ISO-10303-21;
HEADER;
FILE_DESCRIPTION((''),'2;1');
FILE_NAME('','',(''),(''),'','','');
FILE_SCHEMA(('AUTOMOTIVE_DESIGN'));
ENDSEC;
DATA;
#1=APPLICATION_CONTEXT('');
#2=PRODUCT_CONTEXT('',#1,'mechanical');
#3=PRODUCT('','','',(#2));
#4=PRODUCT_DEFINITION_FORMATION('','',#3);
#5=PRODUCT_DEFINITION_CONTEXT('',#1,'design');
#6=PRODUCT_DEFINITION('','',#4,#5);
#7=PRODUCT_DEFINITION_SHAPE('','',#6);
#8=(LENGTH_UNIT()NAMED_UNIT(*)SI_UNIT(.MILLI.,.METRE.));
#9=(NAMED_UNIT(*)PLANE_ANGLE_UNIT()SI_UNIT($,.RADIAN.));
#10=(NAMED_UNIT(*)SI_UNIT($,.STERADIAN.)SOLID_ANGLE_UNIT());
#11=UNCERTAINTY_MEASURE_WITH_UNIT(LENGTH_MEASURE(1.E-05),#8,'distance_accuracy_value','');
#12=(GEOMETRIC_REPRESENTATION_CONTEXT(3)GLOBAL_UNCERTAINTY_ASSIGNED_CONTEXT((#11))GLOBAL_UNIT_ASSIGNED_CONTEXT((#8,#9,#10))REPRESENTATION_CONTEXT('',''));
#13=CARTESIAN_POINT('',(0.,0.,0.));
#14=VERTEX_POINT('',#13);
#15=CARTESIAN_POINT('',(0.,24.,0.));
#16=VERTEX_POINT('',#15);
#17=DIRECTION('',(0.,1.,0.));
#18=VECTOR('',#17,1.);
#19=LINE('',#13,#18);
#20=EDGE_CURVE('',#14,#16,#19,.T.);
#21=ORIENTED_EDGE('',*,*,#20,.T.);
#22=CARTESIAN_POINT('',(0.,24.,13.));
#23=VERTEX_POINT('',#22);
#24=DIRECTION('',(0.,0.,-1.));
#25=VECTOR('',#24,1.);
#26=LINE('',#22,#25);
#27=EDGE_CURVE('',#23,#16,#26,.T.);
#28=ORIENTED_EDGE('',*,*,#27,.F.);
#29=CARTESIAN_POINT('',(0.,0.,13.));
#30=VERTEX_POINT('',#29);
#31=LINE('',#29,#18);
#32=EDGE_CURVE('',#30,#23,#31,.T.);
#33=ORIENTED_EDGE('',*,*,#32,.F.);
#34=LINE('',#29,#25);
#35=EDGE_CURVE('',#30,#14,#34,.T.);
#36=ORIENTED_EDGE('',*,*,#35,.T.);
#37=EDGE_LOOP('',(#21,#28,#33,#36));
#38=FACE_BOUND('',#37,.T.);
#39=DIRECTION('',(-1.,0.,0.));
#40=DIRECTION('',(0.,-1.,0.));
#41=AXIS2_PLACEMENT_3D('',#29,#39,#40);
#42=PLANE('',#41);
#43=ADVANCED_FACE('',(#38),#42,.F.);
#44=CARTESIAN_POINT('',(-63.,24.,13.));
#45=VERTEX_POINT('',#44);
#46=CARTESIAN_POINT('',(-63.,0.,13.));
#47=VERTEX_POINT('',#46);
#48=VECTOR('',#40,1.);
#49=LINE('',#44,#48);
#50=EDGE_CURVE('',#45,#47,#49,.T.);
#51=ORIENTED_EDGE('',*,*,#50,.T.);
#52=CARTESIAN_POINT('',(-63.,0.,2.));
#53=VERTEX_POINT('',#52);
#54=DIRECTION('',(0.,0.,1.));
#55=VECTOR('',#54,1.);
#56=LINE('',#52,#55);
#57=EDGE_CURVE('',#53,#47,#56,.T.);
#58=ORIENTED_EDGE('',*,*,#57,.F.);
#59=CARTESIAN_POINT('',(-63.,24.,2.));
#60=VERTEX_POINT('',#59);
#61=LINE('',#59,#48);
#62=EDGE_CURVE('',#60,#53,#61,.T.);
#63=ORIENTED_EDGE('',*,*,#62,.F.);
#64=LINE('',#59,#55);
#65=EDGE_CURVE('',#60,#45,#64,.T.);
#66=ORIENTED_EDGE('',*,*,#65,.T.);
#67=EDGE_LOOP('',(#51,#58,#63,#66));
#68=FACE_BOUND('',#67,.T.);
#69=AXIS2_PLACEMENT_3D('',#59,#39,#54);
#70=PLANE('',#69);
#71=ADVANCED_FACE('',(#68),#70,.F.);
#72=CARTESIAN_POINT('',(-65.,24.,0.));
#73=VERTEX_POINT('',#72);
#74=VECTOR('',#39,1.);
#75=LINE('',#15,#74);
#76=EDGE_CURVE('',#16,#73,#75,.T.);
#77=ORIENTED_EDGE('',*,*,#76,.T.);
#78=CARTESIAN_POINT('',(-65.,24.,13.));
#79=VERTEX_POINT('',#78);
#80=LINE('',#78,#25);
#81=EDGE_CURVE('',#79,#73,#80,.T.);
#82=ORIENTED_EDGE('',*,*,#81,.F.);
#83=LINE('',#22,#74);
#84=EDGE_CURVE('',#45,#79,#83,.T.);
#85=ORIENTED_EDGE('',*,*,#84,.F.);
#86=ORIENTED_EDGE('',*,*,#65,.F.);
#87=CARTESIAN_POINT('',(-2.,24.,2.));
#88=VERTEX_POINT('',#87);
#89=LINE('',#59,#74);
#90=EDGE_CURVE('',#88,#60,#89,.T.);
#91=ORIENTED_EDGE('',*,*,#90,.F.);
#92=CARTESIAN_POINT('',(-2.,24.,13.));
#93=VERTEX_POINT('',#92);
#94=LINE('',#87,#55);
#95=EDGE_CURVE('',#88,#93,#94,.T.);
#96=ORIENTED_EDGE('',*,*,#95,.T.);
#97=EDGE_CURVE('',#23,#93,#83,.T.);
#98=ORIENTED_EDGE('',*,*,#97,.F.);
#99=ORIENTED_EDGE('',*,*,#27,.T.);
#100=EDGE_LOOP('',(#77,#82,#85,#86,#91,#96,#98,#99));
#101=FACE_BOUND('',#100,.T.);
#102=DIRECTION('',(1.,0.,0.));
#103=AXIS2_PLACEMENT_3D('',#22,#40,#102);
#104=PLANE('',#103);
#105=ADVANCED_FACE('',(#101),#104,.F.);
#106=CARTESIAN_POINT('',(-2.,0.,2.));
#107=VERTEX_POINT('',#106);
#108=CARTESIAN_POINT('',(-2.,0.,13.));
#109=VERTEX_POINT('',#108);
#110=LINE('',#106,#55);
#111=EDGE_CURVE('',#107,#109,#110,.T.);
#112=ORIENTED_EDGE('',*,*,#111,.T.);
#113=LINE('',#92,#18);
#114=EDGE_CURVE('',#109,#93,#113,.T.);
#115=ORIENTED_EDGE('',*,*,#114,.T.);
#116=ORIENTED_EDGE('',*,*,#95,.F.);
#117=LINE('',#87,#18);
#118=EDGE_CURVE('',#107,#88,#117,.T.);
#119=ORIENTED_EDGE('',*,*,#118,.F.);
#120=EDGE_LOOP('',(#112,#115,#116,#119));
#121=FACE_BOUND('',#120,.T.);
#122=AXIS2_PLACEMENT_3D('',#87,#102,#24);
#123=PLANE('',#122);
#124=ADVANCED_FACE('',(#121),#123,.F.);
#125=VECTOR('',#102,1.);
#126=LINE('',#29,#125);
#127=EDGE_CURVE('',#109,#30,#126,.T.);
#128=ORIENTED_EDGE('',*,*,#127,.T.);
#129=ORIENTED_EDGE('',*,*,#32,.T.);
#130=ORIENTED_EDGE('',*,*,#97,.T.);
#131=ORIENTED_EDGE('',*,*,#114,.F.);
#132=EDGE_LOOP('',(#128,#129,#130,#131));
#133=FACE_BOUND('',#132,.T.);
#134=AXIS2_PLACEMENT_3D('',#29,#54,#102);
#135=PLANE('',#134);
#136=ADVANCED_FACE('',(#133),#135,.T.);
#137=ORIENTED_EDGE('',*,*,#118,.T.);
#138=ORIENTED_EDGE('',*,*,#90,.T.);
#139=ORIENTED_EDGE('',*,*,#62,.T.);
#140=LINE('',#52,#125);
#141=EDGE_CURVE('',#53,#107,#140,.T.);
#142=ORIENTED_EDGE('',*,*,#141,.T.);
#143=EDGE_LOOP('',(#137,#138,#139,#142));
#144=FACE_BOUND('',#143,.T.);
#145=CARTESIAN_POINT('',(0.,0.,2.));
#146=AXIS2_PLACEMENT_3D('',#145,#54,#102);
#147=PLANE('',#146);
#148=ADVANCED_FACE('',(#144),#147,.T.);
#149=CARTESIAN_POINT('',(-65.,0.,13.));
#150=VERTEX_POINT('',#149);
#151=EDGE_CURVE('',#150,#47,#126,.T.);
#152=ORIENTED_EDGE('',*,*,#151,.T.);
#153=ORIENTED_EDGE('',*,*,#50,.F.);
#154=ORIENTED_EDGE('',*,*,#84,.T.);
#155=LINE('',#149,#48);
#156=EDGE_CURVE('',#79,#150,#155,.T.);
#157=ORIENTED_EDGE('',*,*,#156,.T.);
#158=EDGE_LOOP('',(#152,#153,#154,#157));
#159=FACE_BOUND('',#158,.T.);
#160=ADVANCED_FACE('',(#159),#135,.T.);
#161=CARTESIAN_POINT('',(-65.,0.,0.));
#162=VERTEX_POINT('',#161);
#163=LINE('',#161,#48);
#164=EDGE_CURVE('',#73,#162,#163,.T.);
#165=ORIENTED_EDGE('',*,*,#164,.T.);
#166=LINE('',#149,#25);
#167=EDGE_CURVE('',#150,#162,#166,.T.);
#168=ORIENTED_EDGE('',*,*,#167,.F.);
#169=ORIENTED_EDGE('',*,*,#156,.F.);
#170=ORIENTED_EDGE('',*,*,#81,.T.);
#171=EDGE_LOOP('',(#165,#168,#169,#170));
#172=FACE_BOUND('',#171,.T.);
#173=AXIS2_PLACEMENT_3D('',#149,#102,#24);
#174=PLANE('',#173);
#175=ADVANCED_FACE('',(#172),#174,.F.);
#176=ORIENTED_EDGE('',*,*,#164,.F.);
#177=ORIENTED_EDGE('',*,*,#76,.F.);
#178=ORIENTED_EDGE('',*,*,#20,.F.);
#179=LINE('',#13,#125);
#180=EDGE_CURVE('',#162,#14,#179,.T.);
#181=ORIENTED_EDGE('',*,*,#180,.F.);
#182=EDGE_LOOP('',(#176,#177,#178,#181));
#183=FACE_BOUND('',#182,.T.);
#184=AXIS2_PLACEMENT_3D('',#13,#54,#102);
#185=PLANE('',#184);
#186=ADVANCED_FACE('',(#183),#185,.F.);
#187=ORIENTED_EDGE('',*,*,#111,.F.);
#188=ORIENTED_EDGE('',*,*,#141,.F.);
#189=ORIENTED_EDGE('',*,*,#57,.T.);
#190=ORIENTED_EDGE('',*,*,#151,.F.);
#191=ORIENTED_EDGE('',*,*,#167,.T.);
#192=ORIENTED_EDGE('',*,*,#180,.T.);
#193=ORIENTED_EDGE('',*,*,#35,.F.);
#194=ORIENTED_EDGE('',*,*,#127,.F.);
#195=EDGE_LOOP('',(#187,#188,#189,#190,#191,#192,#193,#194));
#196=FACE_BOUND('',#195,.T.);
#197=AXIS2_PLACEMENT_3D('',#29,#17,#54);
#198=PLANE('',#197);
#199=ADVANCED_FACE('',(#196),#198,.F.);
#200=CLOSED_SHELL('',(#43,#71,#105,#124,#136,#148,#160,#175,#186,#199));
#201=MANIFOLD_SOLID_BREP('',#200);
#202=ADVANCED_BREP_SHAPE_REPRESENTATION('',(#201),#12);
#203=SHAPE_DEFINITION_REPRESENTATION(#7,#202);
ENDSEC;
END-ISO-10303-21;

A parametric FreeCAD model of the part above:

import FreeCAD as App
import Part
import Sketcher

V = App.Vector
Q = App.Units.Quantity

doc = App.newDocument("Part")
body = doc.addObject("PartDesign::Body", "Body")

# Sketch on XY plane
sketch1 = doc.addObject("Sketcher::SketchObject", "Sketch")
body.addObject(sketch1)
sketch1.AttachmentSupport = (doc.XY_Plane, [""])
sketch1.MapMode = "FlatFace"
sketch1.addGeometry([
    Part.LineSegment(V(-65, 24, 0), V(-65, 0, 0)),
    Part.LineSegment(V(-65, 0, 0), V(0, 0, 0)),
    Part.LineSegment(V(0, 0, 0), V(0, 24, 0)),
    Part.LineSegment(V(0, 24, 0), V(-65, 24, 0)),
], False)
sketch1.addConstraint([
    Sketcher.Constraint("Coincident", 0, 2, 1, 1),
    Sketcher.Constraint("Coincident", 1, 2, 2, 1),
    Sketcher.Constraint("Coincident", 2, 2, 3, 1),
    Sketcher.Constraint("Coincident", 3, 2, 0, 1),
    Sketcher.Constraint("Vertical", 0),
    Sketcher.Constraint("Horizontal", 1),
    Sketcher.Constraint("Vertical", 2),
    Sketcher.Constraint("Horizontal", 3),
    Sketcher.Constraint("Coincident", 1, 2, -1, 1),
    Sketcher.Constraint("DistanceX", 1, 1, 1, 2, Q("65 mm")),
    Sketcher.Constraint("DistanceY", 0, 2, 0, 1, Q("24 mm")),
])
pad1 = doc.addObject("PartDesign::Pad", "Pad")
body.addObject(pad1)
pad1.Profile = sketch1
pad1.Length = 13

# Sketch on XY plane
sketch2 = doc.addObject("Sketcher::SketchObject", "Sketch001")
body.addObject(sketch2)
sketch2.AttachmentSupport = (doc.XY_Plane, [""])
sketch2.MapMode = "FlatFace"
sketch2.AttachmentOffset = App.Placement(V(0, 0, 13), App.Rotation())
sketch2.addGeometry([
    Part.LineSegment(V(-63, 24, 0), V(-63, 0, 0)),
    Part.LineSegment(V(-63, 0, 0), V(-2, 0, 0)),
    Part.LineSegment(V(-2, 0, 0), V(-2, 24, 0)),
    Part.LineSegment(V(-2, 24, 0), V(-63, 24, 0)),
], False)
sketch2.addConstraint([
    Sketcher.Constraint("Coincident", 0, 2, 1, 1),
    Sketcher.Constraint("Coincident", 1, 2, 2, 1),
    Sketcher.Constraint("Coincident", 2, 2, 3, 1),
    Sketcher.Constraint("Coincident", 3, 2, 0, 1),
    Sketcher.Constraint("Vertical", 0),
    Sketcher.Constraint("Horizontal", 1),
    Sketcher.Constraint("Vertical", 2),
    Sketcher.Constraint("Horizontal", 3),
    Sketcher.Constraint("PointOnObject", 0, 2, -1),
    Sketcher.Constraint("DistanceX", 1, 1, 1, 2, Q("61 mm")),
    Sketcher.Constraint("DistanceY", 0, 2, 0, 1, Q("24 mm")),
    Sketcher.Constraint("DistanceX", 0, 2, -1, 1, Q("63 mm")),
])
pocket1 = doc.addObject("PartDesign::Pocket", "Pocket")
body.addObject(pocket1)
pocket1.Profile = sketch2
pocket1.Length = 11

doc.recompute()
